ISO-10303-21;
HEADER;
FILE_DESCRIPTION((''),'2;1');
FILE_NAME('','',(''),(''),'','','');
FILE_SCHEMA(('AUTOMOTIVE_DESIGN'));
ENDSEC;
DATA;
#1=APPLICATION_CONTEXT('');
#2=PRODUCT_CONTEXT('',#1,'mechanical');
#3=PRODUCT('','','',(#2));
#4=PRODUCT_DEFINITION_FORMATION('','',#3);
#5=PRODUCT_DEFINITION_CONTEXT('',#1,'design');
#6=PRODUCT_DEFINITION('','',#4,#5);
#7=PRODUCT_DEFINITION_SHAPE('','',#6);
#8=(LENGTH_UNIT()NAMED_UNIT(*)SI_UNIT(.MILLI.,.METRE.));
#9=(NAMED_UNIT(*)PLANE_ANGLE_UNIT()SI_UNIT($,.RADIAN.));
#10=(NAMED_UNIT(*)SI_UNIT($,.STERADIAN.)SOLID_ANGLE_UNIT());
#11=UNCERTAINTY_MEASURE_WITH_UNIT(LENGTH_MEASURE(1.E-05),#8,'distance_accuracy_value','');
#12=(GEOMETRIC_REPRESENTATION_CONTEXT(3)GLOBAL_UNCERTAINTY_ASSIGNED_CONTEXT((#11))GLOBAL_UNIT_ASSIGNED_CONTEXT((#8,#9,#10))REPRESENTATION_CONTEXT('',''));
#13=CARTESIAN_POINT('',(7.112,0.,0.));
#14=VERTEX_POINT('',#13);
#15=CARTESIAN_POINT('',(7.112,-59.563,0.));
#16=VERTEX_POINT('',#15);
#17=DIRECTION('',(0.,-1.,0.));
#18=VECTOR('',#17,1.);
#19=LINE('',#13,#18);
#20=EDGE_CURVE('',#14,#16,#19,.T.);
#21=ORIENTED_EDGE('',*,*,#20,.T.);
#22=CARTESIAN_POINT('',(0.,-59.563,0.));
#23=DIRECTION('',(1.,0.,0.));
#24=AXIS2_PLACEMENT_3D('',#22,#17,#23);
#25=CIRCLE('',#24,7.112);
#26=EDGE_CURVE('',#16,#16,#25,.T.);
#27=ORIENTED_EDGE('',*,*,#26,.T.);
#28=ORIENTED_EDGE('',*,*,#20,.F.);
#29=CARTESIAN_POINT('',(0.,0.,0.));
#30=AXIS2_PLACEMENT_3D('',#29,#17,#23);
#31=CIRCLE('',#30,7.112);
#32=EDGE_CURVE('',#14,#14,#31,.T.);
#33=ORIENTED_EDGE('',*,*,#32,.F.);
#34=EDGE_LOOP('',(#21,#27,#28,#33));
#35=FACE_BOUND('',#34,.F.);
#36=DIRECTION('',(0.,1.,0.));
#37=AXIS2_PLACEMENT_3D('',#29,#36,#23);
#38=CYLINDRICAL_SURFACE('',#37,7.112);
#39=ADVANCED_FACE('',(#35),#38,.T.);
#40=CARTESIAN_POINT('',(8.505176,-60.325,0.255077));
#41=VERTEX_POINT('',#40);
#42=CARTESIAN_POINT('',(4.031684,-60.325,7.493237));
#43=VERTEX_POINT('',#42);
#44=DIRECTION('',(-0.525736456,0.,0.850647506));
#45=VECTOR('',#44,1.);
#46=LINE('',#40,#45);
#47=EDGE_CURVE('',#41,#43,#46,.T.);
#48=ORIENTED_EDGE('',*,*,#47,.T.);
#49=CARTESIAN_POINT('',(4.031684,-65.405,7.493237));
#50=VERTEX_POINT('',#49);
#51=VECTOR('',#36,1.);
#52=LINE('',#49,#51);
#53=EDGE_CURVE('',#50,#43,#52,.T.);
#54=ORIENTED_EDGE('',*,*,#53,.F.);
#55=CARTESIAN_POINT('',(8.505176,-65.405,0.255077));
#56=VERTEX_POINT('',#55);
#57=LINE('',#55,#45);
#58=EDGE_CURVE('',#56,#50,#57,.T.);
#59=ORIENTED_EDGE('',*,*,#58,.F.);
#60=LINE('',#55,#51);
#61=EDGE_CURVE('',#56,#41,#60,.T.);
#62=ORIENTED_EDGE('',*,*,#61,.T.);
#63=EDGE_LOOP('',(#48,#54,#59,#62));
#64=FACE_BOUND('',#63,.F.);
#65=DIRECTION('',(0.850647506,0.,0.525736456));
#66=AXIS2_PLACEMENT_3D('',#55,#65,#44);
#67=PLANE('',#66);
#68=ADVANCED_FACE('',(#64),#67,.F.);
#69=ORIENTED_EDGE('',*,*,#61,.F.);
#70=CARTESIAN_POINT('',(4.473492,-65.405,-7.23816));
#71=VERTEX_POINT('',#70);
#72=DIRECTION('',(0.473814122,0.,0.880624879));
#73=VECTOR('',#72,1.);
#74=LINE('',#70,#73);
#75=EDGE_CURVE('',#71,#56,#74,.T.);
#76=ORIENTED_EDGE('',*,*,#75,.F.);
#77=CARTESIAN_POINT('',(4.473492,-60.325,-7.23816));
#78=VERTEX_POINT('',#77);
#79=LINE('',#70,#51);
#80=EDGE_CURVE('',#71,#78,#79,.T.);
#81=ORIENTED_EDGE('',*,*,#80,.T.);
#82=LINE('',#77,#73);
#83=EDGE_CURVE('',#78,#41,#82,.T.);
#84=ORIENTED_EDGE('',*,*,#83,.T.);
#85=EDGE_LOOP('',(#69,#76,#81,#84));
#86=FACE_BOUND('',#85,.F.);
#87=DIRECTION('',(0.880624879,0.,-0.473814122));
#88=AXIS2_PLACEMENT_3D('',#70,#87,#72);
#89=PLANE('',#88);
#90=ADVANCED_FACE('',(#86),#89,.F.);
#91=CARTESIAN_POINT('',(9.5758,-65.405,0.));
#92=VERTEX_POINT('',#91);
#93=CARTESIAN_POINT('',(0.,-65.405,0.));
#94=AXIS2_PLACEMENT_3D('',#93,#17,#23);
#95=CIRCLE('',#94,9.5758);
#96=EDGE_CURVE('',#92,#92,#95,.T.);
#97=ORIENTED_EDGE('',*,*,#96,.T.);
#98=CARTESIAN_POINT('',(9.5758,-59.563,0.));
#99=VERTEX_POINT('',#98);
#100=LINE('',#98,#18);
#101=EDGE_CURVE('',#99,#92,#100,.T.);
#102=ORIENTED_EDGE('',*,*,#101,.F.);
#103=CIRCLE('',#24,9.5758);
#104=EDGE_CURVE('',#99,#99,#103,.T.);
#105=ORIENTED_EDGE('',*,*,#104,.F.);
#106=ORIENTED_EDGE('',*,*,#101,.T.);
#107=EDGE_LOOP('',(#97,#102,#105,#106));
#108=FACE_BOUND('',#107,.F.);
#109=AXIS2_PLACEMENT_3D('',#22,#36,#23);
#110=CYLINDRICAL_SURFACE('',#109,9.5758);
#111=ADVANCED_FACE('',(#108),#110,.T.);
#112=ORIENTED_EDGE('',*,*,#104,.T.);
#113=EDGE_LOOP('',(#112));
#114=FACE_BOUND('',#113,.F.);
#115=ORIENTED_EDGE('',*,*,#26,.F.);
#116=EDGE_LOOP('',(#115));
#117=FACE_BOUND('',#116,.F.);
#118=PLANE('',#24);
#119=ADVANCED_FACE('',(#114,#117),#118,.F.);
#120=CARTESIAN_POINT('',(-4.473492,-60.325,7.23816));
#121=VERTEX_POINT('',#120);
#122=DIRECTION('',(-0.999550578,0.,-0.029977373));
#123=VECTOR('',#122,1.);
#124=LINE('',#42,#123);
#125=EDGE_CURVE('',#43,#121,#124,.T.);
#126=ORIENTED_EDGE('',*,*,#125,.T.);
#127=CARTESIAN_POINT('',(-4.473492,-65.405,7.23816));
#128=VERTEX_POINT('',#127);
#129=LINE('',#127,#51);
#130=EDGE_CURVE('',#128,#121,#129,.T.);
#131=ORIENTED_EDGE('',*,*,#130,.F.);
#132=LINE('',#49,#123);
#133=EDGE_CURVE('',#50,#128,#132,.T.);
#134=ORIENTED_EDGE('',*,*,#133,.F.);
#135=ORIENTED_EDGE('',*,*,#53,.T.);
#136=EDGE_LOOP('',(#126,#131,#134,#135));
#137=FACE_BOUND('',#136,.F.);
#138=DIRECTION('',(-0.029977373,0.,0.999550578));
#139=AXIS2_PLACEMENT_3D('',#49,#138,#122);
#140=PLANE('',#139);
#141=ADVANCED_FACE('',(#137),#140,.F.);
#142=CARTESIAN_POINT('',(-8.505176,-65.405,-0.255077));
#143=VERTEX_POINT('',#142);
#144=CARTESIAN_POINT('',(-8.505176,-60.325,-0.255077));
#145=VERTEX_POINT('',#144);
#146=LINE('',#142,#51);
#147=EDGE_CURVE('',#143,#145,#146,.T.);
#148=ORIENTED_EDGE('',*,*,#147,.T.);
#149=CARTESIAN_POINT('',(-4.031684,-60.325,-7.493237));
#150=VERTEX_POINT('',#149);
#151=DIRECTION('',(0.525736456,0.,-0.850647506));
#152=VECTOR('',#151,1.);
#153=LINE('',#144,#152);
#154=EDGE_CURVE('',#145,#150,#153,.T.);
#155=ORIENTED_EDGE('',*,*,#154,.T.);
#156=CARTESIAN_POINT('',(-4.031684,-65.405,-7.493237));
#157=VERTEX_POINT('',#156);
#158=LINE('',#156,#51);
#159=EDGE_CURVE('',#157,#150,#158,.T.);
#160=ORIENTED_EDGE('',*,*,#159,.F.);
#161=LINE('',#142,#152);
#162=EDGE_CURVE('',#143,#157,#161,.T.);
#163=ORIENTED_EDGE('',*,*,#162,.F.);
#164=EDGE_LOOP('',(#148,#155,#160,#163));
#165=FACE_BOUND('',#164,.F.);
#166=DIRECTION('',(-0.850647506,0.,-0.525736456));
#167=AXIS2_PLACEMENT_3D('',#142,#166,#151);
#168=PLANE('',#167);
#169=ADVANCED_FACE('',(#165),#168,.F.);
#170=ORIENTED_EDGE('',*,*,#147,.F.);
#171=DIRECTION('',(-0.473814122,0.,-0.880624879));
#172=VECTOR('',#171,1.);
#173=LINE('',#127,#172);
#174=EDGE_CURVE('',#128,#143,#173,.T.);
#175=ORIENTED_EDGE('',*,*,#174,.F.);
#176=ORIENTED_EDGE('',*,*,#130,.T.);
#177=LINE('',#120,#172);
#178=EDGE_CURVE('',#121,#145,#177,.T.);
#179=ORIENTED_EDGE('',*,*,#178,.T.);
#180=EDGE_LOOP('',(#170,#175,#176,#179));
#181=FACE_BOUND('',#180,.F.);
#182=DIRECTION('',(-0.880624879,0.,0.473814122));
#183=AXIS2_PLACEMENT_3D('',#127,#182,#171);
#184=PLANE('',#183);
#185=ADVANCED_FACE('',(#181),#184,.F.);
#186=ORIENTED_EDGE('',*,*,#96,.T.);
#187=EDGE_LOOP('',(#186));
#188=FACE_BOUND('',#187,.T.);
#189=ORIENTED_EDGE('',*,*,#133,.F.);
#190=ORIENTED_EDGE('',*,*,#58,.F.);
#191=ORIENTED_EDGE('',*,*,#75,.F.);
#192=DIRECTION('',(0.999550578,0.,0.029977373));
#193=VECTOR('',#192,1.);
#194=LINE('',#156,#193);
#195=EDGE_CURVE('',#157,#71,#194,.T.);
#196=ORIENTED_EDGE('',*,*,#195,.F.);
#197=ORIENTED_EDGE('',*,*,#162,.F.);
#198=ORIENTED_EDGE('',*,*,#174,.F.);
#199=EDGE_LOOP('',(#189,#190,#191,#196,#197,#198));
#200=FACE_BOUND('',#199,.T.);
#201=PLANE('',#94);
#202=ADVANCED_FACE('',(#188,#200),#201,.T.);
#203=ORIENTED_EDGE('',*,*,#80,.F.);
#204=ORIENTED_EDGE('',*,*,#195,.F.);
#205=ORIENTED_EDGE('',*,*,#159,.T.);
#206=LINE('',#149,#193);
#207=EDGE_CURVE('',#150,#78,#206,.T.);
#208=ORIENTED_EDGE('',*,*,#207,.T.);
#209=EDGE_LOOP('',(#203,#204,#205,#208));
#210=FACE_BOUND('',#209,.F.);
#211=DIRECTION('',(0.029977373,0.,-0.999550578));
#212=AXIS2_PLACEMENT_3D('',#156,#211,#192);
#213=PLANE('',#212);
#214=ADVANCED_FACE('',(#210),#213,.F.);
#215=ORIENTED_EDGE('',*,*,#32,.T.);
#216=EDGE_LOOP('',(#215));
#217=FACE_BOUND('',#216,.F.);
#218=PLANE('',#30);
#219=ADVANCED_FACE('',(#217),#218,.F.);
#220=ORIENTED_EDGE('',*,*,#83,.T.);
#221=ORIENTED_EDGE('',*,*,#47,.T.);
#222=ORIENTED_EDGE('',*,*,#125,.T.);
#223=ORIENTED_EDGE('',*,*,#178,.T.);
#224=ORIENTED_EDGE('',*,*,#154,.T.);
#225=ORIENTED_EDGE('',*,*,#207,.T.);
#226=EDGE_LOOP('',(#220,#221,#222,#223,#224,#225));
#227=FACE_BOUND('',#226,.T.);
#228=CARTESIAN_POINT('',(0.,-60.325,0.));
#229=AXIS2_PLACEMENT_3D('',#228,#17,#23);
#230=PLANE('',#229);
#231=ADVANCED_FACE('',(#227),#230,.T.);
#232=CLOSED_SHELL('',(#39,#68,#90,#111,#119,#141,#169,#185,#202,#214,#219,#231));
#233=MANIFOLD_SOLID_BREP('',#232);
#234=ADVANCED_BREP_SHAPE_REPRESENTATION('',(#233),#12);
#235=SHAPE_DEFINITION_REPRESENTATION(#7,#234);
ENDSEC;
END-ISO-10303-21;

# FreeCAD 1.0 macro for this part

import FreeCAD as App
import Part
import Sketcher

V = App.Vector
Q = App.Units.Quantity


def add_polygon(sketch, points):
    """Adds a closed chain of lines whose ends are joined by coincident constraints."""
    first, n = sketch.GeometryCount, len(points)
    for a, b in zip(points, points[1:] + points[:1]):
        sketch.addGeometry(Part.LineSegment(App.Vector(*a, 0), App.Vector(*b, 0)), False)
    for i in range(n):
        sketch.addConstraint(Sketcher.Constraint("Coincident", first + i, 2, first + (i + 1) % n, 1))

doc = App.newDocument("Part")
body = doc.addObject("PartDesign::Body", "Body")

sketch1 = body.newObject("Sketcher::SketchObject", "Sketch")
sketch1.AttachmentSupport = (doc.getObject("XZ_Plane"), [""])
sketch1.MapMode = "FlatFace"
sketch1.addGeometry(Part.Circle(V(0, 0, 0), V(0, 0, 1), 7), False)
sketch1.addConstraint(Sketcher.Constraint("Coincident", 0, 3, -1, 1))
sketch1.addConstraint(Sketcher.Constraint("Diameter", 0, Q("0.56 in")))
pad1 = body.newObject("PartDesign::Pad", "Pad")
pad1.Profile = sketch1
pad1.Length = Q("2.345 in")

sketch2 = body.newObject("Sketcher::SketchObject", "Sketch001")
sketch2.AttachmentSupport = (doc.getObject("XZ_Plane"), [""])
sketch2.MapMode = "FlatFace"
sketch2.AttachmentOffset = App.Placement(V(0, 0, 2.345 * 25.4), App.Rotation())
sketch2.addGeometry(Part.Circle(V(0, 0, 0), V(0, 0, 1), 10), False)
sketch2.addConstraint(Sketcher.Constraint("Coincident", 0, 3, -1, 1))
sketch2.addConstraint(Sketcher.Constraint("Diameter", 0, Q("0.754 in")))
pad2 = body.newObject("PartDesign::Pad", "Pad001")
pad2.Profile = sketch2
pad2.Length = Q("0.23 in")

sketch3 = body.newObject("Sketcher::SketchObject", "Sketch002")
sketch3.AttachmentSupport = (doc.getObject("XZ_Plane"), [""])
sketch3.MapMode = "FlatFace"
sketch3.AttachmentOffset = App.Placement(V(0, 0, 2.575 * 25.4), App.Rotation())
add_polygon(sketch3, [(9, 0), (4, 7), (-4, 7), (-9, 0), (-4, -7), (4, -7)])
sketch3.addConstraint(Sketcher.Constraint("Symmetric", 0, 2, 3, 2, -1, 1))
sketch3.addConstraint(Sketcher.Constraint("Symmetric", 1, 2, 4, 2, -1, 1))
sketch3.addConstraint(Sketcher.Constraint("Symmetric", 2, 2, 5, 2, -1, 1))
sketch3.addConstraint(Sketcher.Constraint("Equal", 0, 1))
sketch3.addConstraint(Sketcher.Constraint("Equal", 1, 2))
sketch3.addConstraint(Sketcher.Constraint("Distance", 0, Q("0.335 in")))
sketch3.addConstraint(Sketcher.Constraint("DistanceX", 1, 2, -1, 1, Q("4.473492 mm")))
sketch3.addConstraint(Sketcher.Constraint("DistanceY", -1, 1, 1, 2, Q("7.23816 mm")))
sketch3.addConstraint(Sketcher.Constraint("DistanceX", 2, 2, 0, 2, Q("12.53686 mm")))
pocket1 = body.newObject("PartDesign::Pocket", "Pocket")
pocket1.Profile = sketch3
pocket1.Length = Q("0.2 in")

doc.recompute()
